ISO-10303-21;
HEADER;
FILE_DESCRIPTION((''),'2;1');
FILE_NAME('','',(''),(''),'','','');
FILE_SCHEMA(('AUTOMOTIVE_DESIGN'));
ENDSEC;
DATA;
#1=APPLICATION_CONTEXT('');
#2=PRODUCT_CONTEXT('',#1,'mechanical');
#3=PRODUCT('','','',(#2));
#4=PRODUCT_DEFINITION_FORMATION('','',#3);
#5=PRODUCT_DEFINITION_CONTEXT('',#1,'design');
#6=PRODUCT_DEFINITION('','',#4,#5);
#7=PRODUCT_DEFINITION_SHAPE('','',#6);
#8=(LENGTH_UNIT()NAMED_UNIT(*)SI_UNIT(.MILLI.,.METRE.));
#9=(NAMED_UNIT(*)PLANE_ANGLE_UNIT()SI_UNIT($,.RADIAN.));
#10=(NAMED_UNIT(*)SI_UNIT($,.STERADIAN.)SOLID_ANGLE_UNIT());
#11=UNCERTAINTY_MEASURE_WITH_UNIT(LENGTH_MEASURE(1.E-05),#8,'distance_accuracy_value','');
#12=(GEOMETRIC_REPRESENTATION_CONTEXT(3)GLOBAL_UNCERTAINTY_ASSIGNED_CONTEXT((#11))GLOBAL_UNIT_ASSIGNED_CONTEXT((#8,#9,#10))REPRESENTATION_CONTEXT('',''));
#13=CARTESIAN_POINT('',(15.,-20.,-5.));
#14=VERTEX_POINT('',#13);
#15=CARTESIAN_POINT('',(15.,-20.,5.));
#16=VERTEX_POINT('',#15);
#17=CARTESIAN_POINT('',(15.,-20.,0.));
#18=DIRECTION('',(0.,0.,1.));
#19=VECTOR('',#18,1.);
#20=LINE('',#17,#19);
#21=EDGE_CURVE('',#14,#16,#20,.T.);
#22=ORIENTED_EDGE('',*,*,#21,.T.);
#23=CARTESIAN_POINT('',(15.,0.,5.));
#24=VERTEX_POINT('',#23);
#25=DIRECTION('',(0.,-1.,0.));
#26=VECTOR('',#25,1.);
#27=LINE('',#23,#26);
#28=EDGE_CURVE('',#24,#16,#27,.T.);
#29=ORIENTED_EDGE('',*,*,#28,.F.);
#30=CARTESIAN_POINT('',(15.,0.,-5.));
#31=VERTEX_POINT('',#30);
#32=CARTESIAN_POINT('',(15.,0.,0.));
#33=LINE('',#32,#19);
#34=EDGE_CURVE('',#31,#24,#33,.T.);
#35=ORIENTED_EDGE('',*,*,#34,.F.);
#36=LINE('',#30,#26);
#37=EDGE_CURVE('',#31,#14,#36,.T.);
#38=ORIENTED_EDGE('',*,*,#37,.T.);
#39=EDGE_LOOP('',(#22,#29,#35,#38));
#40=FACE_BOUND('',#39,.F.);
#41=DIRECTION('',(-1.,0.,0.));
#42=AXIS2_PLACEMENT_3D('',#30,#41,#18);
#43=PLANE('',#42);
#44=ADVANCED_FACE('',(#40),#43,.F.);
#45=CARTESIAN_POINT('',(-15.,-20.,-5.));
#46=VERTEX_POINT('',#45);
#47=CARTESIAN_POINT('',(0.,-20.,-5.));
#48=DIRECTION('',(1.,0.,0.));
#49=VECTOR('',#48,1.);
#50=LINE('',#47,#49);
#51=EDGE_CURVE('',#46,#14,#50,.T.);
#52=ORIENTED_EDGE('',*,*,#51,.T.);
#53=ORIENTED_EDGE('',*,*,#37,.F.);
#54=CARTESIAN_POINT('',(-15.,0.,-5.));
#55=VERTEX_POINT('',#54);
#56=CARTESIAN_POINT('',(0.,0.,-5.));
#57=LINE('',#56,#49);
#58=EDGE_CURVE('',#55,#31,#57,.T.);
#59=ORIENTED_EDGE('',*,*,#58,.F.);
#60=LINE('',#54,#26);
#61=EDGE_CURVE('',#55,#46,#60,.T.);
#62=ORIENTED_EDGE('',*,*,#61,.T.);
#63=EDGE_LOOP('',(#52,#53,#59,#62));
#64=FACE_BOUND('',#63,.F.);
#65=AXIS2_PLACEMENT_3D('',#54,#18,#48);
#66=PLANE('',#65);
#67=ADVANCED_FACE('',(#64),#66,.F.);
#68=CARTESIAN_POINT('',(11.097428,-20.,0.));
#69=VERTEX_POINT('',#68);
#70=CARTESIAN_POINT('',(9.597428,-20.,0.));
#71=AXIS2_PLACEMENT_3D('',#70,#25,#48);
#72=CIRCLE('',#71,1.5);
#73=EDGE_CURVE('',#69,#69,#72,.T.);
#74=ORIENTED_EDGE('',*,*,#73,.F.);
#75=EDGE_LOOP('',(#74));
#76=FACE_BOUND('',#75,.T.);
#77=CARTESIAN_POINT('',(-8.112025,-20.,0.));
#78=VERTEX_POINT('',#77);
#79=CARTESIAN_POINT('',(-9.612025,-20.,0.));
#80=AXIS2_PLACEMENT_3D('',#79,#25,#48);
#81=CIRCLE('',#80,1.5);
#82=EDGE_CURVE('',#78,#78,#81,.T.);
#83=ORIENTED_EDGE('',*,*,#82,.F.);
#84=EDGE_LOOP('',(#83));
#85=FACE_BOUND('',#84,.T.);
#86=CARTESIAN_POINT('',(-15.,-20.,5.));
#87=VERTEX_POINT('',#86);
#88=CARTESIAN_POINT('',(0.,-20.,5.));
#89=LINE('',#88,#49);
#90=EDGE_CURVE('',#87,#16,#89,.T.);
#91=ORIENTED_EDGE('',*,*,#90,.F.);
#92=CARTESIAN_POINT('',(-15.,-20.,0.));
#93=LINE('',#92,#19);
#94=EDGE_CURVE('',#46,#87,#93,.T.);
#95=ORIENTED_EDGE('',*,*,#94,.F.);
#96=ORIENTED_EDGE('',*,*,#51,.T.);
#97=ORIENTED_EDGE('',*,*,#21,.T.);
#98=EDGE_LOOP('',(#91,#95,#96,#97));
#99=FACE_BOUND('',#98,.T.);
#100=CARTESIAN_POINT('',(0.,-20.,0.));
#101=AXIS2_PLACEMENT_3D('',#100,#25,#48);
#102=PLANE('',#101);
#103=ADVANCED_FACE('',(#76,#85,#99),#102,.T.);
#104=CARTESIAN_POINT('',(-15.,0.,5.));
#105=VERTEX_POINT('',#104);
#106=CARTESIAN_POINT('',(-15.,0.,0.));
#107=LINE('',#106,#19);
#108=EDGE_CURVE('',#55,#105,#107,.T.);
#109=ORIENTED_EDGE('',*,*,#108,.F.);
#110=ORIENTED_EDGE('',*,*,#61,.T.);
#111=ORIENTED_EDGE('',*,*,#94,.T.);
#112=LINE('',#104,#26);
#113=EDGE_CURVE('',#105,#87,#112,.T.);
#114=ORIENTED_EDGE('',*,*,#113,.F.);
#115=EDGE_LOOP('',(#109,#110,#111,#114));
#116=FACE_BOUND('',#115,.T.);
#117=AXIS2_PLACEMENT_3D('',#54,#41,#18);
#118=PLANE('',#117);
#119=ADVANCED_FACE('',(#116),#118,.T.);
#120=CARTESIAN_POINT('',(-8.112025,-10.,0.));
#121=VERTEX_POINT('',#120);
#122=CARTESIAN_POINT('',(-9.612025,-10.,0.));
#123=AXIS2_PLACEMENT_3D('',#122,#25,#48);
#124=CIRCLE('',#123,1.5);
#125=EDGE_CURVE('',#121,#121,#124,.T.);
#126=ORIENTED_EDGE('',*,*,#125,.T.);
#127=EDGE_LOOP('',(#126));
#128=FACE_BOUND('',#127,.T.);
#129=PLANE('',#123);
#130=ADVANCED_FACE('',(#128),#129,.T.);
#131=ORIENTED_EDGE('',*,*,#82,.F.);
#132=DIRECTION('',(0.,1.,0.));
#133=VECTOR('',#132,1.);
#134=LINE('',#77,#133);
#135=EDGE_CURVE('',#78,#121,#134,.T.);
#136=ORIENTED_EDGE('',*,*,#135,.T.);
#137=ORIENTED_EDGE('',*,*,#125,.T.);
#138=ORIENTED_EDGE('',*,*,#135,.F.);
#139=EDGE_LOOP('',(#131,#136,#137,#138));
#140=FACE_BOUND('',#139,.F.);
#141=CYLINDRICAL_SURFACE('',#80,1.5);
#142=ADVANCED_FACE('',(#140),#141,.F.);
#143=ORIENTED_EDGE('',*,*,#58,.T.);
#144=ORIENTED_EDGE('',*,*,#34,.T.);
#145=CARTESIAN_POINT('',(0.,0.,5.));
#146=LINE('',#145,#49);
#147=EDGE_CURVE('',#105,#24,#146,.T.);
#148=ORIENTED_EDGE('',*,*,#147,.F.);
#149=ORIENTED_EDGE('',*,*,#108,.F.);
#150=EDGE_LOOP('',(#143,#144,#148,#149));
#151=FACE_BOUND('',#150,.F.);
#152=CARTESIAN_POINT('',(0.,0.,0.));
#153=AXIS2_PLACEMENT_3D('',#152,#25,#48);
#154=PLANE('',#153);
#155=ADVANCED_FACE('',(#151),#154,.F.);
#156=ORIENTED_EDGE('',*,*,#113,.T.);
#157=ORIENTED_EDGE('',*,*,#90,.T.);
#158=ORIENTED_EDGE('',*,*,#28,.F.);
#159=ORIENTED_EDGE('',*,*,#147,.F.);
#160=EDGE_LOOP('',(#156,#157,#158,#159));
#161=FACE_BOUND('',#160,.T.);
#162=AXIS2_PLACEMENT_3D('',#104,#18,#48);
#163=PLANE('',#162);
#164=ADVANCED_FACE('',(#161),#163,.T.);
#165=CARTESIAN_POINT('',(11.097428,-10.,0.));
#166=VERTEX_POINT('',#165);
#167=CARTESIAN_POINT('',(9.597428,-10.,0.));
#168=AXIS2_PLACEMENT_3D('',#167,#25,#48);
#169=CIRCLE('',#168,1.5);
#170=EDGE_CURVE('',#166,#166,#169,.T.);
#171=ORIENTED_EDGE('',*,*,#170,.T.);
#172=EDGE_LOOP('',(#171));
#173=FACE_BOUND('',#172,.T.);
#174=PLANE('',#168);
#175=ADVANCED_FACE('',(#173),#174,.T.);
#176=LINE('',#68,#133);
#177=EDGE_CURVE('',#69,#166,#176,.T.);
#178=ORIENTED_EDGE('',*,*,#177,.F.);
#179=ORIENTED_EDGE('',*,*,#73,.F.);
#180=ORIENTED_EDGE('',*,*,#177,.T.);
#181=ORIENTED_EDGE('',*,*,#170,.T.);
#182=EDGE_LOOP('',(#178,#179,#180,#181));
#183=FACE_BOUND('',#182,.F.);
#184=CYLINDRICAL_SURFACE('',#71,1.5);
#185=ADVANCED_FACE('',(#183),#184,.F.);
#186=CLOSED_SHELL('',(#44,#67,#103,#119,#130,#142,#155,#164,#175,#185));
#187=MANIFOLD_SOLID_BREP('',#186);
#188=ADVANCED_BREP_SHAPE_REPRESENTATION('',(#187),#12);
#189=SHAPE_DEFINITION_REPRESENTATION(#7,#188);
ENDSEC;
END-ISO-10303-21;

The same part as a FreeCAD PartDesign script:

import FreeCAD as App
import Part
import Sketcher
Q = App.Units.Quantity

doc = App.newDocument("Part")
body = doc.addObject("PartDesign::Body", "Body")

# Sketch on XZ plane
sketch1 = body.newObject("Sketcher::SketchObject", "Sketch")
sketch1.AttachmentSupport = (doc.getObject("XZ_Plane"), [""])
sketch1.MapMode = "FlatFace"
sketch1.addGeometry([
    Part.LineSegment(App.Vector(-15, 5, 0), App.Vector(-15, -5, 0)),
    Part.LineSegment(App.Vector(-15, -5, 0), App.Vector(15, -5, 0)),
    Part.LineSegment(App.Vector(15, -5, 0), App.Vector(15, 5, 0)),
    Part.LineSegment(App.Vector(15, 5, 0), App.Vector(-15, 5, 0)),
], False)
sketch1.addConstraint([
    Sketcher.Constraint("Coincident", 0, 2, 1, 1),
    Sketcher.Constraint("Coincident", 1, 2, 2, 1),
    Sketcher.Constraint("Coincident", 2, 2, 3, 1),
    Sketcher.Constraint("Coincident", 3, 2, 0, 1),
    Sketcher.Constraint("Vertical", 0),
    Sketcher.Constraint("Horizontal", 1),
    Sketcher.Constraint("Vertical", 2),
    Sketcher.Constraint("Horizontal", 3),
    Sketcher.Constraint("Symmetric", 0, 2, 2, 2, -1, 1),
    Sketcher.Constraint("DistanceX", 1, 1, 1, 2, Q("30 mm")),
    Sketcher.Constraint("DistanceY", 0, 2, 0, 1, Q("10 mm")),
])
pad1 = body.newObject("PartDesign::Pad", "Pad")
pad1.Profile = sketch1
pad1.Length = 20

# Sketch on XZ plane
sketch2 = body.newObject("Sketcher::SketchObject", "Sketch001")
sketch2.AttachmentSupport = (doc.getObject("XZ_Plane"), [""])
sketch2.MapMode = "FlatFace"
sketch2.AttachmentOffset = App.Placement(App.Vector(0, 0, 20), App.Rotation())
sketch2.addGeometry(Part.Circle(App.Vector(9.597428, 0, 0), App.Vector(0, 0, 1), 1.5), False)
sketch2.addConstraint([
    Sketcher.Constraint("PointOnObject", 0, 3, -1),
    Sketcher.Constraint("Diameter", 0, Q("3 mm")),
    Sketcher.Constraint("DistanceX", -1, 1, 0, 3, Q("9.597428 mm")),
])
pocket1 = body.newObject("PartDesign::Pocket", "Pocket")
pocket1.Profile = sketch2
pocket1.Length = 10

# Sketch on XZ plane
sketch3 = body.newObject("Sketcher::SketchObject", "Sketch002")
sketch3.AttachmentSupport = (doc.getObject("XZ_Plane"), [""])
sketch3.MapMode = "FlatFace"
sketch3.AttachmentOffset = App.Placement(App.Vector(0, 0, 20), App.Rotation())
sketch3.addGeometry(Part.Circle(App.Vector(-9.612025, 0, 0), App.Vector(0, 0, 1), 1.5), False)
sketch3.addConstraint([
    Sketcher.Constraint("PointOnObject", 0, 3, -1),
    Sketcher.Constraint("Diameter", 0, Q("3 mm")),
    Sketcher.Constraint("DistanceX", 0, 3, -1, 1, Q("9.612025 mm")),
])
pocket2 = body.newObject("PartDesign::Pocket", "Pocket001")
pocket2.Profile = sketch3
pocket2.Length = 10

doc.recompute()
